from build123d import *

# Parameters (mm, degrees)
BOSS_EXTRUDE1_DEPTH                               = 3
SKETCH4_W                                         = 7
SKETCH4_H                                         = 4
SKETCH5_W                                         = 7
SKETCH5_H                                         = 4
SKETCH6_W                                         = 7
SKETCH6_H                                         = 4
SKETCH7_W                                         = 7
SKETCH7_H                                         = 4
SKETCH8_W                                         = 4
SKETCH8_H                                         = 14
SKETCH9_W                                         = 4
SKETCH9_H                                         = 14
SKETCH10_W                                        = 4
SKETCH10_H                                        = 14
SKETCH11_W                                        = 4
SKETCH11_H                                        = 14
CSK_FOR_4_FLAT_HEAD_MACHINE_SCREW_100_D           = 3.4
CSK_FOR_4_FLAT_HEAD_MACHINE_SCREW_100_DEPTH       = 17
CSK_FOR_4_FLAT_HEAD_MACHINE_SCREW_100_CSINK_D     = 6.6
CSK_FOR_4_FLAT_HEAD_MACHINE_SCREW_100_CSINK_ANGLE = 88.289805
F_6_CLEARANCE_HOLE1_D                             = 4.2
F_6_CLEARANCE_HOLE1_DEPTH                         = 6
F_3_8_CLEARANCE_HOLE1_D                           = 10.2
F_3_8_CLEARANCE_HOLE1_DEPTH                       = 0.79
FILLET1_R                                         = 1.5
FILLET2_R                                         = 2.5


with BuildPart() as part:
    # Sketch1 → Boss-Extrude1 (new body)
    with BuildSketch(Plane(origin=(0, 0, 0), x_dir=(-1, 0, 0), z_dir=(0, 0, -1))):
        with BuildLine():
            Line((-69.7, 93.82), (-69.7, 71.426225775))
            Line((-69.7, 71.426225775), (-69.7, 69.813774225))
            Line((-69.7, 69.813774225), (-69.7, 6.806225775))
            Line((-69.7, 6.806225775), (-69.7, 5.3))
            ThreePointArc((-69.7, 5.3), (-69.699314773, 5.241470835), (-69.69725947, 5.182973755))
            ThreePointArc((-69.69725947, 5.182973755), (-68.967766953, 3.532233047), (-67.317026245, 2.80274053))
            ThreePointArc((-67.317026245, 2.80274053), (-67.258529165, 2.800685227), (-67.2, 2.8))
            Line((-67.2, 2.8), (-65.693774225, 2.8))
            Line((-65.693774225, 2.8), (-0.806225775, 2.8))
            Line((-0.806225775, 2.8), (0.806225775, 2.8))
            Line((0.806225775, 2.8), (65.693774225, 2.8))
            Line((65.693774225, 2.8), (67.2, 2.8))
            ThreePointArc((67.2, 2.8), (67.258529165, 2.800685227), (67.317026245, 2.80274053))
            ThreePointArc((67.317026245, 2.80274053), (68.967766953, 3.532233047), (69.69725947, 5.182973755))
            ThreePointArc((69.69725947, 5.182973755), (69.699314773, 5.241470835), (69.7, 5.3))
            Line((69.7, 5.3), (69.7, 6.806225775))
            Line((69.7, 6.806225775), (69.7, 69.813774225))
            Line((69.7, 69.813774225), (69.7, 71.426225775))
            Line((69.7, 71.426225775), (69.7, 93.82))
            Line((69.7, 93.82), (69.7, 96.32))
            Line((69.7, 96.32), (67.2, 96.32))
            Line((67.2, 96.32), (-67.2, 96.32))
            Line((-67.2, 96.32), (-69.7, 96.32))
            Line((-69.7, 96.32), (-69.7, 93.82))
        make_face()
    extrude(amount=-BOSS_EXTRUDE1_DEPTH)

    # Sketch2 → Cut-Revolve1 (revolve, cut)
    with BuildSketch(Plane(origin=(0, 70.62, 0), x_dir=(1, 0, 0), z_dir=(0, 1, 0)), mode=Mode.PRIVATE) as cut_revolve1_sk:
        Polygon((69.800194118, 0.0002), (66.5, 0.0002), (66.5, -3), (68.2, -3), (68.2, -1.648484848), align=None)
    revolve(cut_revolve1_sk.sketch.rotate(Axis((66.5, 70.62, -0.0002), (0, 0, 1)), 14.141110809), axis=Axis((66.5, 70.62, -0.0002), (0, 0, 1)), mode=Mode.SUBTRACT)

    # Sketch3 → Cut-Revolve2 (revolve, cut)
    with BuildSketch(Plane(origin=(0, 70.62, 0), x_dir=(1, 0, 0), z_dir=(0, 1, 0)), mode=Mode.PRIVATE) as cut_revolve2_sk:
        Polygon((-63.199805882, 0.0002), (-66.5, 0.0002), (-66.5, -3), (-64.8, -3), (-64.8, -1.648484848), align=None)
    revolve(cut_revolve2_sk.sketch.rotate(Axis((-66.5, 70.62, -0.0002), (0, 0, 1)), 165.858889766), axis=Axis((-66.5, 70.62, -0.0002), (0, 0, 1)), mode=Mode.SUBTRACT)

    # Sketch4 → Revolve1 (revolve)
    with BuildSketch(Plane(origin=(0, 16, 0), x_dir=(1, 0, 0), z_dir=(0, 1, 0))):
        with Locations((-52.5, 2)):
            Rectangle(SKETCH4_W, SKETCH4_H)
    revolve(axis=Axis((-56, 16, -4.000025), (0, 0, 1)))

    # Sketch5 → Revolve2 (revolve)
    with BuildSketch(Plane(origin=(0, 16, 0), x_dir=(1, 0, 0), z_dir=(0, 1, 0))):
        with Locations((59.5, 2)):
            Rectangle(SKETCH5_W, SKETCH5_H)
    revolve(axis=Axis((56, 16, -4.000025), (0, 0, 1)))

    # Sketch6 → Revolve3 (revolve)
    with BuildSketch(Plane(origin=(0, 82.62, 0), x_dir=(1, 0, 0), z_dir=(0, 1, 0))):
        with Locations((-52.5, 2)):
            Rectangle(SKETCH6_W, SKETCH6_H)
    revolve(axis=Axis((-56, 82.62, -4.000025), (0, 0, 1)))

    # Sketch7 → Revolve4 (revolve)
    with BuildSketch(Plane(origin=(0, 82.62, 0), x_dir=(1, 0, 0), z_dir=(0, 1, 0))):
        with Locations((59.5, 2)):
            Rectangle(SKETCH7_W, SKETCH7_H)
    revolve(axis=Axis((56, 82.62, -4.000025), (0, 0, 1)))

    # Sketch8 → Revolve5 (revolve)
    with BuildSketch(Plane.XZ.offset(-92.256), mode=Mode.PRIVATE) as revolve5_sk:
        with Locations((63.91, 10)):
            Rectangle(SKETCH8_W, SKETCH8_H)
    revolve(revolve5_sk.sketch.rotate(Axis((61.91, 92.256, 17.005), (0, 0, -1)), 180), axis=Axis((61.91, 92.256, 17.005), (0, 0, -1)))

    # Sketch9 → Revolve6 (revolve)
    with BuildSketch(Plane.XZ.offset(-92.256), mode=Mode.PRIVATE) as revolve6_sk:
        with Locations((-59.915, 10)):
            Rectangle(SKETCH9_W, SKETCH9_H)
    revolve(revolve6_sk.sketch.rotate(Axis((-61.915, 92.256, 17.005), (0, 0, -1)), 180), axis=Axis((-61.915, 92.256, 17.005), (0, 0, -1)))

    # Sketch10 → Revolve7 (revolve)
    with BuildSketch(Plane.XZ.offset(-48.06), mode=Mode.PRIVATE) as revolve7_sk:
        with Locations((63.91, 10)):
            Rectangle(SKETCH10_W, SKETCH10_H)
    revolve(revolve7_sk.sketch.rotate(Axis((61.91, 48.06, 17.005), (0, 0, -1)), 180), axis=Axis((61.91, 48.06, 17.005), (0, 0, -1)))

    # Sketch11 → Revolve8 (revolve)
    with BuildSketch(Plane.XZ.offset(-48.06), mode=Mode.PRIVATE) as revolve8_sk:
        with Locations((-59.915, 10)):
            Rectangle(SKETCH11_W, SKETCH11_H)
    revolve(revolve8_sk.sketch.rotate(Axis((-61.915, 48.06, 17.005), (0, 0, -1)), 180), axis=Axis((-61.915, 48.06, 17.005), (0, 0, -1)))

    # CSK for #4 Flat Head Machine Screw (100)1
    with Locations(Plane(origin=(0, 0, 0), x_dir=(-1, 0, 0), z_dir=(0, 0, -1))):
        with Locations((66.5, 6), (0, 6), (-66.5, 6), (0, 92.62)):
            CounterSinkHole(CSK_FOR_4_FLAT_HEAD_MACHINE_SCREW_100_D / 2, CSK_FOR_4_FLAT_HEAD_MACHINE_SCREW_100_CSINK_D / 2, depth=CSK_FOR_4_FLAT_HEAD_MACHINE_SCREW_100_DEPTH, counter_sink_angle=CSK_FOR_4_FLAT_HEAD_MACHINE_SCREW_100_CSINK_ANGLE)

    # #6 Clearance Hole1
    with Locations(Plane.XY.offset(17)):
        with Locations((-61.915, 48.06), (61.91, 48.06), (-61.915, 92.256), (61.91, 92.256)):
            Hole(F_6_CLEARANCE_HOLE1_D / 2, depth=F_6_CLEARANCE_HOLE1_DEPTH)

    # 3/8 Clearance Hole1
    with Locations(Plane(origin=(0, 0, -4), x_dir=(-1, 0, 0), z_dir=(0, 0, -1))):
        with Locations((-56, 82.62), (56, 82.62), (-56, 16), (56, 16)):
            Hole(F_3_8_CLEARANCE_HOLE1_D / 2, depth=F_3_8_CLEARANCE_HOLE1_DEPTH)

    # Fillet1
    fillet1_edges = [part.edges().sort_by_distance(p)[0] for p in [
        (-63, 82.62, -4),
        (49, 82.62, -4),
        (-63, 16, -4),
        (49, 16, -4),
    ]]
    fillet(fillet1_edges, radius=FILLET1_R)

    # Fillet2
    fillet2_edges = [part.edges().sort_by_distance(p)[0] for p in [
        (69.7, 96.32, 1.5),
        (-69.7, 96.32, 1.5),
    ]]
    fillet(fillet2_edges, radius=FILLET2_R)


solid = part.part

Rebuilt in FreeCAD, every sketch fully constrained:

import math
import FreeCAD as App
import Part
import Sketcher

V = App.Vector
Q = App.Units.Quantity


def edges_at(feature, points):
    """Names of the edges that pass closest to the given points."""
    edges = feature.Shape.Edges
    near = lambda p: min(range(len(edges)), key=lambda i: edges[i].distToShape(Part.Vertex(*p))[0])
    return sorted({f"Edge{near(p) + 1}" for p in points})


def add_polygon(sketch, points):
    """Adds a closed chain of lines whose ends are joined by coincident constraints."""
    first, n = sketch.GeometryCount, len(points)
    for a, b in zip(points, points[1:] + points[:1]):
        sketch.addGeometry(Part.LineSegment(App.Vector(*a, 0), App.Vector(*b, 0)), False)
    for i in range(n):
        sketch.addConstraint(Sketcher.Constraint("Coincident", first + i, 2, first + (i + 1) % n, 1))

doc = App.newDocument("Part")
body = doc.addObject("PartDesign::Body", "Body")

sketch1 = body.newObject("Sketcher::SketchObject", "Sketch")
sketch1.AttachmentSupport = (doc.getObject("XY_Plane"), [""])
sketch1.MapMode = "FlatFace"
sketch1.addGeometry([
    Part.ArcOfCircle(Part.Circle(V(67.199997, 5.3, 0), V(0, 0, 1), 2.500003), math.radians(-2.683023), math.radians(-0.000001)),
    Part.ArcOfCircle(Part.Circle(V(67.2, 5.3, 0), V(0, 0, 1), 2.5), math.radians(-87.316976), math.radians(-2.683024)),
    Part.ArcOfCircle(Part.Circle(V(67.2, 5.300003, 0), V(0, 0, 1), 2.500003), math.radians(-89.999999), math.radians(-87.316977)),
    Part.LineSegment(V(67.2, 2.8, 0), V(-67.2, 2.8, 0)),
    Part.ArcOfCircle(Part.Circle(V(-67.2, 5.300003, 0), V(0, 0, 1), 2.500003), math.radians(-92.683023), math.radians(-90.000001)),
    Part.ArcOfCircle(Part.Circle(V(-67.2, 5.3, 0), V(0, 0, 1), 2.5), math.radians(-177.316976), math.radians(-92.683024)),
    Part.ArcOfCircle(Part.Circle(V(-67.199997, 5.3, 0), V(0, 0, 1), 2.500003), math.radians(-179.999999), math.radians(-177.316977)),
    Part.LineSegment(V(-69.7, 5.3, 0), V(-69.7, 96.32, 0)),
    Part.LineSegment(V(-69.7, 96.32, 0), V(69.7, 96.32, 0)),
    Part.LineSegment(V(69.7, 96.32, 0), V(69.7, 5.3, 0)),
], False)
sketch1.addConstraint([
    Sketcher.Constraint("Tangent", 0, 1, 1, 2),
    Sketcher.Constraint("Tangent", 1, 1, 2, 2),
    Sketcher.Constraint("Tangent", 2, 1, 3, 1),
    Sketcher.Constraint("Tangent", 3, 2, 4, 2),
    Sketcher.Constraint("Tangent", 4, 1, 5, 2),
    Sketcher.Constraint("Tangent", 5, 1, 6, 2),
    Sketcher.Constraint("Tangent", 6, 1, 7, 1),
    Sketcher.Constraint("Coincident", 7, 2, 8, 1),
    Sketcher.Constraint("Coincident", 8, 2, 9, 1),
    Sketcher.Constraint("Tangent", 9, 2, 0, 2),
    Sketcher.Constraint("Horizontal", 3),
    Sketcher.Constraint("Vertical", 7),
    Sketcher.Constraint("Horizontal", 8),
    Sketcher.Constraint("Vertical", 9),
    Sketcher.Constraint("Coincident", 2, 3, 0, 3),
    Sketcher.Constraint("Coincident", 6, 3, 4, 3),
    Sketcher.Constraint("Equal", 2, 4),
    Sketcher.Constraint("Symmetric", 1, 1, 4, 1, -2),
    Sketcher.Constraint("Horizontal", 0, 1, 5, 1),
    Sketcher.Constraint("Radius", 1, Q("2.5 mm")),
    Sketcher.Constraint("DistanceX", 3, 2, 3, 1, Q("134.4 mm")),
    Sketcher.Constraint("DistanceY", 7, 1, 7, 2, Q("91.02 mm")),
    Sketcher.Constraint("DistanceY", -1, 1, 0, 3, Q("5.3 mm")),
    Sketcher.Constraint("DistanceX", -1, 1, 0, 1, Q("69.697259 mm")),
    Sketcher.Constraint("DistanceY", -1, 1, 1, 1, Q("2.802741 mm")),
])
pad1 = body.newObject("PartDesign::Pad", "Pad")
pad1.Profile = sketch1
pad1.Length = 3

sketch2 = body.newObject("Sketcher::SketchObject", "Sketch001")
sketch2.AttachmentSupport = (doc.getObject("XZ_Plane"), [""])
sketch2.MapMode = "FlatFace"
sketch2.AttachmentOffset = App.Placement(V(0, 0, -70.62), App.Rotation())
add_polygon(sketch2, [(69.800194, -0.0002), (66.5, -0.0002), (66.5, 3), (68.2, 3), (68.2, 1.648485)])
sketch2.addGeometry(Part.LineSegment(V(66.5, -0.0002, 0), V(66.5, 3, 0)), True)
sketch2.addConstraint([
    Sketcher.Constraint("Horizontal", 0),
    Sketcher.Constraint("Vertical", 1),
    Sketcher.Constraint("Horizontal", 2),
    Sketcher.Constraint("Vertical", 3),
    Sketcher.Constraint("Vertical", 5),
    Sketcher.Constraint("Coincident", 5, 1, 0, 2),
    Sketcher.Constraint("Horizontal", 2, 2, 5, 2),
    Sketcher.Constraint("DistanceX", 2, 1, 2, 2, Q("1.7 mm")),
    Sketcher.Constraint("DistanceY", -1, 1, 1, 2, Q("3 mm")),
    Sketcher.Constraint("DistanceX", -1, 1, 0, 2, Q("66.5 mm")),
    Sketcher.Constraint("DistanceY", 1, 1, 1, 2, Q("3.0002 mm")),
    Sketcher.Constraint("Distance", 4, Q("2.29756 mm")),
    Sketcher.Constraint("DistanceX", 0, 2, 0, 1, Q("3.300194 mm")),
])
groove = body.newObject("PartDesign::Groove", "Groove")
groove.Profile = sketch2
groove.ReferenceAxis = (sketch2, ["Axis0"])
groove.Angle = 360

sketch3 = body.newObject("Sketcher::SketchObject", "Sketch002")
sketch3.AttachmentSupport = (doc.getObject("XZ_Plane"), [""])
sketch3.MapMode = "FlatFace"
sketch3.AttachmentOffset = App.Placement(V(0, 0, -70.62), App.Rotation())
add_polygon(sketch3, [(-63.199806, -0.0002), (-66.5, -0.0002), (-66.5, 3), (-64.8, 3), (-64.8, 1.648485)])
sketch3.addGeometry(Part.LineSegment(V(-66.5, -0.0002, 0), V(-66.5, 3, 0)), True)
sketch3.addConstraint([
    Sketcher.Constraint("Horizontal", 0),
    Sketcher.Constraint("Vertical", 1),
    Sketcher.Constraint("Horizontal", 2),
    Sketcher.Constraint("Vertical", 3),
    Sketcher.Constraint("Vertical", 5),
    Sketcher.Constraint("Coincident", 5, 1, 0, 2),
    Sketcher.Constraint("Horizontal", 2, 2, 5, 2),
    Sketcher.Constraint("DistanceX", 2, 1, 2, 2, Q("1.7 mm")),
    Sketcher.Constraint("DistanceY", -1, 1, 1, 2, Q("3 mm")),
    Sketcher.Constraint("DistanceX", 0, 2, -1, 1, Q("66.5 mm")),
    Sketcher.Constraint("DistanceY", 1, 1, 1, 2, Q("3.0002 mm")),
    Sketcher.Constraint("Distance", 4, Q("2.29756 mm")),
    Sketcher.Constraint("DistanceX", 0, 2, 0, 1, Q("3.300194 mm")),
])
groove2 = body.newObject("PartDesign::Groove", "Groove001")
groove2.Profile = sketch3
groove2.ReferenceAxis = (sketch3, ["Axis0"])
groove2.Angle = 360

sketch4 = body.newObject("Sketcher::SketchObject", "Sketch003")
sketch4.AttachmentSupport = (doc.getObject("XZ_Plane"), [""])
sketch4.MapMode = "FlatFace"
sketch4.AttachmentOffset = App.Placement(V(0, 0, -16), App.Rotation())
add_polygon(sketch4, [(-56, -4), (-56, 0), (-49, 0), (-49, -4)])
sketch4.addGeometry(Part.LineSegment(V(-56, -4, 0), V(-56, 0, 0)), True)
sketch4.addConstraint([
    Sketcher.Constraint("Vertical", 0),
    Sketcher.Constraint("Horizontal", 1),
    Sketcher.Constraint("Vertical", 2),
    Sketcher.Constraint("Horizontal", 3),
    Sketcher.Constraint("Vertical", 4),
    Sketcher.Constraint("Coincident", 4, 1, 3, 2),
    Sketcher.Constraint("PointOnObject", 0, 2, -1),
    Sketcher.Constraint("PointOnObject", 4, 2, -1),
    Sketcher.Constraint("DistanceX", 1, 1, 1, 2, Q("7 mm")),
    Sketcher.Constraint("DistanceY", 0, 1, 0, 2, Q("4 mm")),
    Sketcher.Constraint("DistanceX", 0, 2, -1, 1, Q("56 mm")),
])
revolution = body.newObject("PartDesign::Revolution", "Revolution")
revolution.Profile = sketch4
revolution.ReferenceAxis = (sketch4, ["Axis0"])
revolution.Angle = 360

sketch5 = body.newObject("Sketcher::SketchObject", "Sketch004")
sketch5.AttachmentSupport = (doc.getObject("XZ_Plane"), [""])
sketch5.MapMode = "FlatFace"
sketch5.AttachmentOffset = App.Placement(V(0, 0, -16), App.Rotation())
add_polygon(sketch5, [(56, -4), (56, 0), (63, 0), (63, -4)])
sketch5.addGeometry(Part.LineSegment(V(56, -4, 0), V(56, 0, 0)), True)
sketch5.addConstraint([
    Sketcher.Constraint("Vertical", 0),
    Sketcher.Constraint("Horizontal", 1),
    Sketcher.Constraint("Vertical", 2),
    Sketcher.Constraint("Horizontal", 3),
    Sketcher.Constraint("Vertical", 4),
    Sketcher.Constraint("Coincident", 4, 1, 3, 2),
    Sketcher.Constraint("PointOnObject", 0, 2, -1),
    Sketcher.Constraint("PointOnObject", 4, 2, -1),
    Sketcher.Constraint("DistanceX", 1, 1, 1, 2, Q("7 mm")),
    Sketcher.Constraint("DistanceY", 0, 1, 0, 2, Q("4 mm")),
    Sketcher.Constraint("DistanceX", -1, 1, 0, 2, Q("56 mm")),
])
revolution2 = body.newObject("PartDesign::Revolution", "Revolution001")
revolution2.Profile = sketch5
revolution2.ReferenceAxis = (sketch5, ["Axis0"])
revolution2.Angle = 360

sketch6 = body.newObject("Sketcher::SketchObject", "Sketch005")
sketch6.AttachmentSupport = (doc.getObject("XZ_Plane"), [""])
sketch6.MapMode = "FlatFace"
sketch6.AttachmentOffset = App.Placement(V(0, 0, -82.62), App.Rotation())
add_polygon(sketch6, [(-56, -4), (-56, 0), (-49, 0), (-49, -4)])
sketch6.addGeometry(Part.LineSegment(V(-56, -4, 0), V(-56, 0, 0)), True)
sketch6.addConstraint([
    Sketcher.Constraint("Vertical", 0),
    Sketcher.Constraint("Horizontal", 1),
    Sketcher.Constraint("Vertical", 2),
    Sketcher.Constraint("Horizontal", 3),
    Sketcher.Constraint("Vertical", 4),
    Sketcher.Constraint("Coincident", 4, 1, 3, 2),
    Sketcher.Constraint("PointOnObject", 0, 2, -1),
    Sketcher.Constraint("PointOnObject", 4, 2, -1),
    Sketcher.Constraint("DistanceX", 1, 1, 1, 2, Q("7 mm")),
    Sketcher.Constraint("DistanceY", 0, 1, 0, 2, Q("4 mm")),
    Sketcher.Constraint("DistanceX", 0, 2, -1, 1, Q("56 mm")),
])
revolution3 = body.newObject("PartDesign::Revolution", "Revolution002")
revolution3.Profile = sketch6
revolution3.ReferenceAxis = (sketch6, ["Axis0"])
revolution3.Angle = 360

sketch7 = body.newObject("Sketcher::SketchObject", "Sketch006")
sketch7.AttachmentSupport = (doc.getObject("XZ_Plane"), [""])
sketch7.MapMode = "FlatFace"
sketch7.AttachmentOffset = App.Placement(V(0, 0, -82.62), App.Rotation())
add_polygon(sketch7, [(56, -4), (56, 0), (63, 0), (63, -4)])
sketch7.addGeometry(Part.LineSegment(V(56, -4, 0), V(56, 0, 0)), True)
sketch7.addConstraint([
    Sketcher.Constraint("Vertical", 0),
    Sketcher.Constraint("Horizontal", 1),
    Sketcher.Constraint("Vertical", 2),
    Sketcher.Constraint("Horizontal", 3),
    Sketcher.Constraint("Vertical", 4),
    Sketcher.Constraint("Coincident", 4, 1, 3, 2),
    Sketcher.Constraint("PointOnObject", 0, 2, -1),
    Sketcher.Constraint("PointOnObject", 4, 2, -1),
    Sketcher.Constraint("DistanceX", 1, 1, 1, 2, Q("7 mm")),
    Sketcher.Constraint("DistanceY", 0, 1, 0, 2, Q("4 mm")),
    Sketcher.Constraint("DistanceX", -1, 1, 0, 2, Q("56 mm")),
])
revolution4 = body.newObject("PartDesign::Revolution", "Revolution003")
revolution4.Profile = sketch7
revolution4.ReferenceAxis = (sketch7, ["Axis0"])
revolution4.Angle = 360

sketch8 = body.newObject("Sketcher::SketchObject", "Sketch007")
sketch8.AttachmentSupport = (doc.getObject("XZ_Plane"), [""])
sketch8.MapMode = "FlatFace"
sketch8.AttachmentOffset = App.Placement(V(0, 0, -92.256), App.Rotation())
add_polygon(sketch8, [(61.91, 17), (61.91, 3), (65.91, 3), (65.91, 17)])
sketch8.addGeometry(Part.LineSegment(V(61.91, 17, 0), V(61.91, 3, 0)), True)
sketch8.addConstraint([
    Sketcher.Constraint("Vertical", 0),
    Sketcher.Constraint("Horizontal", 1),
    Sketcher.Constraint("Vertical", 2),
    Sketcher.Constraint("Horizontal", 3),
    Sketcher.Constraint("Vertical", 4),
    Sketcher.Constraint("Coincident", 4, 1, 3, 2),
    Sketcher.Constraint("Horizontal", 1, 2, 4, 2),
    Sketcher.Constraint("DistanceX", 1, 1, 1, 2, Q("4 mm")),
    Sketcher.Constraint("DistanceY", 0, 2, 0, 1, Q("14 mm")),
    Sketcher.Constraint("DistanceY", -1, 1, 0, 2, Q("3 mm")),
    Sketcher.Constraint("DistanceX", -1, 1, 0, 2, Q("61.91 mm")),
])
revolution5 = body.newObject("PartDesign::Revolution", "Revolution004")
revolution5.Profile = sketch8
revolution5.ReferenceAxis = (sketch8, ["Axis0"])
revolution5.Angle = 360

sketch9 = body.newObject("Sketcher::SketchObject", "Sketch008")
sketch9.AttachmentSupport = (doc.getObject("XZ_Plane"), [""])
sketch9.MapMode = "FlatFace"
sketch9.AttachmentOffset = App.Placement(V(0, 0, -92.256), App.Rotation())
add_polygon(sketch9, [(-61.915, 17), (-61.915, 3), (-57.915, 3), (-57.915, 17)])
sketch9.addGeometry(Part.LineSegment(V(-61.915, 17, 0), V(-61.915, 3, 0)), True)
sketch9.addConstraint([
    Sketcher.Constraint("Vertical", 0),
    Sketcher.Constraint("Horizontal", 1),
    Sketcher.Constraint("Vertical", 2),
    Sketcher.Constraint("Horizontal", 3),
    Sketcher.Constraint("Vertical", 4),
    Sketcher.Constraint("Coincident", 4, 1, 3, 2),
    Sketcher.Constraint("Horizontal", 1, 2, 4, 2),
    Sketcher.Constraint("DistanceX", 1, 1, 1, 2, Q("4 mm")),
    Sketcher.Constraint("DistanceY", 0, 2, 0, 1, Q("14 mm")),
    Sketcher.Constraint("DistanceY", -1, 1, 0, 2, Q("3 mm")),
    Sketcher.Constraint("DistanceX", 0, 2, -1, 1, Q("61.915 mm")),
])
revolution6 = body.newObject("PartDesign::Revolution", "Revolution005")
revolution6.Profile = sketch9
revolution6.ReferenceAxis = (sketch9, ["Axis0"])
revolution6.Angle = 360

sketch10 = body.newObject("Sketcher::SketchObject", "Sketch009")
sketch10.AttachmentSupport = (doc.getObject("XZ_Plane"), [""])
sketch10.MapMode = "FlatFace"
sketch10.AttachmentOffset = App.Placement(V(0, 0, -48.06), App.Rotation())
add_polygon(sketch10, [(61.91, 17), (61.91, 3), (65.91, 3), (65.91, 17)])
sketch10.addGeometry(Part.LineSegment(V(61.91, 17, 0), V(61.91, 3, 0)), True)
sketch10.addConstraint([
    Sketcher.Constraint("Vertical", 0),
    Sketcher.Constraint("Horizontal", 1),
    Sketcher.Constraint("Vertical", 2),
    Sketcher.Constraint("Horizontal", 3),
    Sketcher.Constraint("Vertical", 4),
    Sketcher.Constraint("Coincident", 4, 1, 3, 2),
    Sketcher.Constraint("Horizontal", 1, 2, 4, 2),
    Sketcher.Constraint("DistanceX", 1, 1, 1, 2, Q("4 mm")),
    Sketcher.Constraint("DistanceY", 0, 2, 0, 1, Q("14 mm")),
    Sketcher.Constraint("DistanceY", -1, 1, 0, 2, Q("3 mm")),
    Sketcher.Constraint("DistanceX", -1, 1, 0, 2, Q("61.91 mm")),
])
revolution7 = body.newObject("PartDesign::Revolution", "Revolution006")
revolution7.Profile = sketch10
revolution7.ReferenceAxis = (sketch10, ["Axis0"])
revolution7.Angle = 360

sketch11 = body.newObject("Sketcher::SketchObject", "Sketch010")
sketch11.AttachmentSupport = (doc.getObject("XZ_Plane"), [""])
sketch11.MapMode = "FlatFace"
sketch11.AttachmentOffset = App.Placement(V(0, 0, -48.06), App.Rotation())
add_polygon(sketch11, [(-61.915, 17), (-61.915, 3), (-57.915, 3), (-57.915, 17)])
sketch11.addGeometry(Part.LineSegment(V(-61.915, 17, 0), V(-61.915, 3, 0)), True)
sketch11.addConstraint([
    Sketcher.Constraint("Vertical", 0),
    Sketcher.Constraint("Horizontal", 1),
    Sketcher.Constraint("Vertical", 2),
    Sketcher.Constraint("Horizontal", 3),
    Sketcher.Constraint("Vertical", 4),
    Sketcher.Constraint("Coincident", 4, 1, 3, 2),
    Sketcher.Constraint("Horizontal", 1, 2, 4, 2),
    Sketcher.Constraint("DistanceX", 1, 1, 1, 2, Q("4 mm")),
    Sketcher.Constraint("DistanceY", 0, 2, 0, 1, Q("14 mm")),
    Sketcher.Constraint("DistanceY", -1, 1, 0, 2, Q("3 mm")),
    Sketcher.Constraint("DistanceX", 0, 2, -1, 1, Q("61.915 mm")),
])
revolution8 = body.newObject("PartDesign::Revolution", "Revolution007")
revolution8.Profile = sketch11
revolution8.ReferenceAxis = (sketch11, ["Axis0"])
revolution8.Angle = 360

sketch12 = body.newObject("Sketcher::SketchObject", "Sketch011")
sketch12.AttachmentSupport = (doc.getObject("XY_Plane"), [""])
sketch12.MapMode = "FlatFace"
sketch12.addGeometry([
    Part.Circle(V(-66.5, 6, 0), V(0, 0, 1), 1.7),
    Part.Circle(V(0, 6, 0), V(0, 0, 1), 1.7),
    Part.Circle(V(66.5, 6, 0), V(0, 0, 1), 1.7),
    Part.Circle(V(0, 92.62, 0), V(0, 0, 1), 1.7),
], False)
sketch12.addConstraint([
    Sketcher.Constraint("Equal", 0, 1),
    Sketcher.Constraint("Equal", 1, 2),
    Sketcher.Constraint("Equal", 2, 3),
    Sketcher.Constraint("Symmetric", 0, 3, 2, 3, -2),
    Sketcher.Constraint("PointOnObject", 1, 3, -2),
    Sketcher.Constraint("PointOnObject", 3, 3, -2),
    Sketcher.Constraint("Horizontal", 0, 3, 1, 3),
    Sketcher.Constraint("Diameter", 0, Q("3.4 mm")),
    Sketcher.Constraint("DistanceY", -1, 1, 0, 3, Q("6 mm")),
    Sketcher.Constraint("DistanceX", 0, 3, 2, 3, Q("133 mm")),
    Sketcher.Constraint("DistanceY", -1, 1, 3, 3, Q("92.62 mm")),
])
doc.recompute()
hole = body.newObject("PartDesign::Hole", "Hole")
hole.Profile = sketch12
hole.ThreadType = "None"
hole.Diameter = 3.4
hole.DepthType = "Dimension"
hole.Depth = 17
hole.DrillPoint = "Flat"
hole.HoleCutType = "Countersink"
hole.HoleCutDiameter = 6.6
hole.HoleCutCountersinkAngle = 88.289805
hole.Reversed = True

sketch13 = body.newObject("Sketcher::SketchObject", "Sketch012")
sketch13.AttachmentSupport = (doc.getObject("XY_Plane"), [""])
sketch13.MapMode = "FlatFace"
sketch13.AttachmentOffset = App.Placement(V(0, 0, 17), App.Rotation())
sketch13.addGeometry([
    Part.Circle(V(-61.915, 48.06, 0), V(0, 0, 1), 2.1),
    Part.Circle(V(61.91, 48.06, 0), V(0, 0, 1), 2.1),
    Part.Circle(V(-61.915, 92.256, 0), V(0, 0, 1), 2.1),
    Part.Circle(V(61.91, 92.256, 0), V(0, 0, 1), 2.1),
], False)
sketch13.addConstraint([
    Sketcher.Constraint("Equal", 0, 1),
    Sketcher.Constraint("Equal", 1, 2),
    Sketcher.Constraint("Equal", 2, 3),
    Sketcher.Constraint("Horizontal", 0, 3, 1, 3),
    Sketcher.Constraint("Horizontal", 2, 3, 3, 3),
    Sketcher.Constraint("Vertical", 0, 3, 2, 3),
    Sketcher.Constraint("Vertical", 1, 3, 3, 3),
    Sketcher.Constraint("Diameter", 0, Q("4.2 mm")),
    Sketcher.Constraint("DistanceY", -1, 1, 0, 3, Q("48.06 mm")),
    Sketcher.Constraint("DistanceX", -1, 1, 1, 3, Q("61.91 mm")),
    Sketcher.Constraint("DistanceX", 0, 3, -1, 1, Q("61.915 mm")),
    Sketcher.Constraint("DistanceY", -1, 1, 2, 3, Q("92.256 mm")),
])
doc.recompute()
hole2 = body.newObject("PartDesign::Hole", "Hole001")
hole2.Profile = sketch13
hole2.ThreadType = "None"
hole2.Diameter = 4.2
hole2.DepthType = "Dimension"
hole2.Depth = 6
hole2.DrillPoint = "Flat"

sketch14 = body.newObject("Sketcher::SketchObject", "Sketch013")
sketch14.AttachmentSupport = (doc.getObject("XY_Plane"), [""])
sketch14.MapMode = "FlatFace"
sketch14.AttachmentOffset = App.Placement(V(0, 0, -4), App.Rotation())
sketch14.addGeometry([
    Part.Circle(V(56, 82.62, 0), V(0, 0, 1), 5.1),
    Part.Circle(V(-56, 82.62, 0), V(0, 0, 1), 5.1),
    Part.Circle(V(56, 16, 0), V(0, 0, 1), 5.1),
    Part.Circle(V(-56, 16, 0), V(0, 0, 1), 5.1),
], False)
sketch14.addConstraint([
    Sketcher.Constraint("Equal", 0, 1),
    Sketcher.Constraint("Equal", 1, 2),
    Sketcher.Constraint("Equal", 2, 3),
    Sketcher.Constraint("Symmetric", 0, 3, 1, 3, -2),
    Sketcher.Constraint("Symmetric", 2, 3, 3, 3, -2),
    Sketcher.Constraint("Vertical", 0, 3, 2, 3),
    Sketcher.Constraint("Diameter", 0, Q("10.2 mm")),
    Sketcher.Constraint("DistanceX", -1, 1, 0, 3, Q("56 mm")),
    Sketcher.Constraint("DistanceY", -1, 1, 2, 3, Q("16 mm")),
    Sketcher.Constraint("DistanceY", -1, 1, 0, 3, Q("82.62 mm")),
])
doc.recompute()
hole3 = body.newObject("PartDesign::Hole", "Hole002")
hole3.Profile = sketch14
hole3.ThreadType = "None"
hole3.Diameter = 10.2
hole3.DepthType = "Dimension"
hole3.Depth = 0.79
hole3.DrillPoint = "Flat"
hole3.Reversed = True
doc.recompute()

fillet = body.newObject("PartDesign::Fillet", "Fillet")
fillet.Base = (hole3, edges_at(hole3, [
    (-63, 82.62, -4),
    (49, 82.62, -4),
    (-63, 16, -4),
    (49, 16, -4),
]))
fillet.Radius = 1.5
doc.recompute()

fillet2 = body.newObject("PartDesign::Fillet", "Fillet001")
fillet2.Base = (fillet, edges_at(fillet, [(69.7, 96.32, 1.5), (-69.7, 96.32, 1.5)]))
fillet2.Radius = 2.5

doc.recompute()
